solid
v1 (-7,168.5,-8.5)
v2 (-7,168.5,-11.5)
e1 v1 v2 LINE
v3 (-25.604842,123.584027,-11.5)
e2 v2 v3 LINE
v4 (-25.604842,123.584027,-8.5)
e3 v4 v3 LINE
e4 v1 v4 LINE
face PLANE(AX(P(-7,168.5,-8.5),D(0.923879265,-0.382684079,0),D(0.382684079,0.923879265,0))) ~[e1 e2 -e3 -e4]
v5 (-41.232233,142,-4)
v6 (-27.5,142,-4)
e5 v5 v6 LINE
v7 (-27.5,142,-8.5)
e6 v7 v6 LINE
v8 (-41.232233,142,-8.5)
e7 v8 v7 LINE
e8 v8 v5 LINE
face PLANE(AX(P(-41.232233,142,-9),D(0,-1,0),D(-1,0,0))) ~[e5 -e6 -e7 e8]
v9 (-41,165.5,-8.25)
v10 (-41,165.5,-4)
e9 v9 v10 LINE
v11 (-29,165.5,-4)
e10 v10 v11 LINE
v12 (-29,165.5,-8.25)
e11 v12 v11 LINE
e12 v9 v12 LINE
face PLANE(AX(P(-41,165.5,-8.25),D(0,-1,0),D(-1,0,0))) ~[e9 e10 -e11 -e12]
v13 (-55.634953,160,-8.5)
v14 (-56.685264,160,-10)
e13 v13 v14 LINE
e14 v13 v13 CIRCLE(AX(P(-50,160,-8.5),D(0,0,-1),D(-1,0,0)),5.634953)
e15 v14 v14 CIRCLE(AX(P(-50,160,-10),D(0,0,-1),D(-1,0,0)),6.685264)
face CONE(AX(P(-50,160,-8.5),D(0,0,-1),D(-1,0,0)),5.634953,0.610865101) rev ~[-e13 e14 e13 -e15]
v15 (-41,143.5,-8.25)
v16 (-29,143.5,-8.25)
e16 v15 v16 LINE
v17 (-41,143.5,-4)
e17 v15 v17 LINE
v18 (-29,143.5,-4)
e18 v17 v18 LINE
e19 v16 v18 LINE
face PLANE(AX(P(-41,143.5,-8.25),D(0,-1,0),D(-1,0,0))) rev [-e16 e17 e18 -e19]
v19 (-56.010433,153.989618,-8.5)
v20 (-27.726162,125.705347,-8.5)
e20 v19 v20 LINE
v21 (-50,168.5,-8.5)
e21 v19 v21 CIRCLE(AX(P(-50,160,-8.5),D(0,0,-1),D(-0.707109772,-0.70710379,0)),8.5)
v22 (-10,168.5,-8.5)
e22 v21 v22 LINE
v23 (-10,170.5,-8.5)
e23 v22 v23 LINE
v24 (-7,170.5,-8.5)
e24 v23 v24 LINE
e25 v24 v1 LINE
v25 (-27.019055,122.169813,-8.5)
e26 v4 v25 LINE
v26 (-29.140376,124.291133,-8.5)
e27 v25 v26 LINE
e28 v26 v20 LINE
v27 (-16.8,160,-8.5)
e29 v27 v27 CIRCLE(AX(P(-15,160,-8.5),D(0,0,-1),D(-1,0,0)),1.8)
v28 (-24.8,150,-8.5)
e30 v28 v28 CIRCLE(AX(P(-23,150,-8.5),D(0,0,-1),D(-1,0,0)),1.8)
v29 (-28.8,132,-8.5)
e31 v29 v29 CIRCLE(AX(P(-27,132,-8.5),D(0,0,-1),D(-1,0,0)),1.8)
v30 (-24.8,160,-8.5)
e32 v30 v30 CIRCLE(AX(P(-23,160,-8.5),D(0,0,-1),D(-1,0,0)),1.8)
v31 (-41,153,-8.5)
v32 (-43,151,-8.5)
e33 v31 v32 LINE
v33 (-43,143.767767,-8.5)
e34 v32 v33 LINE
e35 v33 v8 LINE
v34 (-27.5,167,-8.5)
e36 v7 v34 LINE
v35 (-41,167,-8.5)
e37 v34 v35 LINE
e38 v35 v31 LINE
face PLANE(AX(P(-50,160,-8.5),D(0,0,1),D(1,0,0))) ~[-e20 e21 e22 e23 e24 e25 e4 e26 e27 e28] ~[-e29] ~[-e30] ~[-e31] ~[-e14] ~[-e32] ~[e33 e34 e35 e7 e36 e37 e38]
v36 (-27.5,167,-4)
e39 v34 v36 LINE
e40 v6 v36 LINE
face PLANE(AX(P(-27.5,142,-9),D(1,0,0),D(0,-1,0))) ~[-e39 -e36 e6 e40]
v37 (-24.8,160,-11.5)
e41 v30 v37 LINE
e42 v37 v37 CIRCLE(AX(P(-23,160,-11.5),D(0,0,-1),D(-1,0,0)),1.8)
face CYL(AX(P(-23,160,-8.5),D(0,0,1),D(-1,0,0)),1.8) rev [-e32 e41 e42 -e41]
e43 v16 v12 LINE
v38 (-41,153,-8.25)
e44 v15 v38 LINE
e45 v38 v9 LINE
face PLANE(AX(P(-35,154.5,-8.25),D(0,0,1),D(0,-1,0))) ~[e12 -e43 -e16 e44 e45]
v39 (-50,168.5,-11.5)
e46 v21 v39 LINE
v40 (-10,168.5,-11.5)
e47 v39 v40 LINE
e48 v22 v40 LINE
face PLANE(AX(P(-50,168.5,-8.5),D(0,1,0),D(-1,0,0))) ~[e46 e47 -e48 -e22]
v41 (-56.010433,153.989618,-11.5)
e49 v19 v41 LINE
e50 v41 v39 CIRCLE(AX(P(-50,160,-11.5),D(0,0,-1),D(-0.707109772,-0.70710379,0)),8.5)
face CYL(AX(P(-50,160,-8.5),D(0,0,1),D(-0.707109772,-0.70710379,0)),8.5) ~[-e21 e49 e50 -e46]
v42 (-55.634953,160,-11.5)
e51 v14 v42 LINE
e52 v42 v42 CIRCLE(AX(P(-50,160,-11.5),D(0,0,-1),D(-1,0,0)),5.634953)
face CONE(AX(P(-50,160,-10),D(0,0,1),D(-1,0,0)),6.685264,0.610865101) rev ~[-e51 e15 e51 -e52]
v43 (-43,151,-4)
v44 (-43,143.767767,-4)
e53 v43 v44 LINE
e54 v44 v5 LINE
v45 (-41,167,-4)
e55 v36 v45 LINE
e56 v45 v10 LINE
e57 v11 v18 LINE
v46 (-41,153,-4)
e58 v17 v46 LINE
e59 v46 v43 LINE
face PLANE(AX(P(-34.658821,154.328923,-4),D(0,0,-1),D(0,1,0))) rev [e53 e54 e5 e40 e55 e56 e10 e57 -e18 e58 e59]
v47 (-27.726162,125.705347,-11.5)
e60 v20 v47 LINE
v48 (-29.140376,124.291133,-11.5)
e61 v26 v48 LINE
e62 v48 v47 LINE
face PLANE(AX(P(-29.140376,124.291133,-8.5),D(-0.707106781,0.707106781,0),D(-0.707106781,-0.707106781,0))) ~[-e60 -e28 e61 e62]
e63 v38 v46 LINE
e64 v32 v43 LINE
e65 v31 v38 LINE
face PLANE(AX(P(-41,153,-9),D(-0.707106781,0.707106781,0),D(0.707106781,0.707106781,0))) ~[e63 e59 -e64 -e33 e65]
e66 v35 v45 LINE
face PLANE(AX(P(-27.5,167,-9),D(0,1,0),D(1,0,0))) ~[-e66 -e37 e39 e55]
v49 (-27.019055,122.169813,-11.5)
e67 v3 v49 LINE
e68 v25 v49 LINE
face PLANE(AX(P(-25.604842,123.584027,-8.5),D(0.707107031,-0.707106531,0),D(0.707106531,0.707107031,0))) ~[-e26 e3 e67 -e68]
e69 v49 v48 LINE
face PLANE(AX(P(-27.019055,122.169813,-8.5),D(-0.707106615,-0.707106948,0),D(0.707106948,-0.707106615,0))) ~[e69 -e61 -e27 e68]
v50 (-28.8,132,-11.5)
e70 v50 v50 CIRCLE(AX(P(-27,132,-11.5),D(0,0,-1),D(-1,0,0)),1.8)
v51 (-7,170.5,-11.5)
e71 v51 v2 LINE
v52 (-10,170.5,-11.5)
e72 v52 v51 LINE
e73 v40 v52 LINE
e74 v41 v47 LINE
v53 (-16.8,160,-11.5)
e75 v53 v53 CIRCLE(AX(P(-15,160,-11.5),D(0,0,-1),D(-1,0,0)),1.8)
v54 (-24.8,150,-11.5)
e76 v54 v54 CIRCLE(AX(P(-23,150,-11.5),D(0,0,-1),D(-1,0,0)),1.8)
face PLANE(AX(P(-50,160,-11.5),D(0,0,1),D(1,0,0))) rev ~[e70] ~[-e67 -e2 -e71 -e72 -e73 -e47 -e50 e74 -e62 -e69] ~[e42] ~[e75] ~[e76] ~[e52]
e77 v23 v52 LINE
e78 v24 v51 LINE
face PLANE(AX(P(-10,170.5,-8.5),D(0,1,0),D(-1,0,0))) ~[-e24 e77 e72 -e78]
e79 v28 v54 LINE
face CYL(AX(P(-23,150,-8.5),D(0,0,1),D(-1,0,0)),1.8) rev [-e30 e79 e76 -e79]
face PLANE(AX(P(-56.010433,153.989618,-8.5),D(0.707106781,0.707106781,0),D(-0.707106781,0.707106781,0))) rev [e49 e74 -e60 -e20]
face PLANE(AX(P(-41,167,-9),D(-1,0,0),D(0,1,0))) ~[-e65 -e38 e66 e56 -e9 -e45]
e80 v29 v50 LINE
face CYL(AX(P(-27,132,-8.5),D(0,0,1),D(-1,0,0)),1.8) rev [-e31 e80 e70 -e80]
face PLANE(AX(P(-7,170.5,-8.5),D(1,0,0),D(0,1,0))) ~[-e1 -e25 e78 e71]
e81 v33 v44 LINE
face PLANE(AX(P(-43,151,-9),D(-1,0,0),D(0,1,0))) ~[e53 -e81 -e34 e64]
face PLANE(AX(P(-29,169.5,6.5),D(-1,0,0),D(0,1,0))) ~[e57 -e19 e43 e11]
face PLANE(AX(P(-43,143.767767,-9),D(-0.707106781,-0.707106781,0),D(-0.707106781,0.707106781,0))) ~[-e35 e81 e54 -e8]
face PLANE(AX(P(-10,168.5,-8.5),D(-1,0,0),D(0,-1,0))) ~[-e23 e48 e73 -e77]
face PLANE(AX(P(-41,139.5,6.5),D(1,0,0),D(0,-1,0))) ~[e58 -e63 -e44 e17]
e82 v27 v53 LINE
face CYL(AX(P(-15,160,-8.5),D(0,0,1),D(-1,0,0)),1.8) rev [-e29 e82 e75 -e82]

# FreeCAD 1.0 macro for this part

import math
import FreeCAD as App
import Part
import Sketcher
Q = App.Units.Quantity


def add_polygon(sketch, points):
    """Adds a closed chain of lines whose ends are joined by coincident constraints."""
    first, n = sketch.GeometryCount, len(points)
    for a, b in zip(points, points[1:] + points[:1]):
        sketch.addGeometry(Part.LineSegment(App.Vector(*a, 0), App.Vector(*b, 0)), False)
    for i in range(n):
        sketch.addConstraint(Sketcher.Constraint("Coincident", first + i, 2, first + (i + 1) % n, 1))

doc = App.newDocument("Part")
body = doc.addObject("PartDesign::Body", "Body")

# Sketch on XY plane
sketch1 = body.newObject("Sketcher::SketchObject", "Sketch")
sketch1.AttachmentSupport = (doc.getObject("XY_Plane"), [""])
sketch1.MapMode = "FlatFace"
sketch1.AttachmentOffset = App.Placement(App.Vector(0, 0, -8.5), App.Rotation())
sketch1.addGeometry([
    Part.ArcOfCircle(Part.Circle(App.Vector(50, 160, 0), App.Vector(0, 0, 1), 8.5), math.radians(-45), math.radians(90)),  # 0
    Part.LineSegment(App.Vector(50, 168.5, 0), App.Vector(10, 168.5, 0)),  # 1
    Part.LineSegment(App.Vector(10, 168.5, 0), App.Vector(10, 170.5, 0)),  # 2
    Part.LineSegment(App.Vector(10, 170.5, 0), App.Vector(7, 170.5, 0)),  # 3
    Part.LineSegment(App.Vector(7, 170.5, 0), App.Vector(7, 168.5, 0)),  # 4
    Part.LineSegment(App.Vector(7, 168.5, 0), App.Vector(25.6, 123.6, 0)),  # 5
    Part.LineSegment(App.Vector(25.6, 123.6, 0), App.Vector(27, 122.2, 0)),  # 6
    Part.LineSegment(App.Vector(27, 122.2, 0), App.Vector(29.1, 124.3, 0)),  # 7
    Part.LineSegment(App.Vector(29.1, 124.3, 0), App.Vector(27.7, 125.7, 0)),  # 8
    Part.LineSegment(App.Vector(27.7, 125.7, 0), App.Vector(56, 154, 0)),  # 9
    Part.Circle(App.Vector(27, 132, 0), App.Vector(0, 0, 1), 1.8),  # 10
    Part.Circle(App.Vector(23, 150, 0), App.Vector(0, 0, 1), 1.8),  # 11
    Part.Circle(App.Vector(15, 160, 0), App.Vector(0, 0, 1), 1.8),  # 12
    Part.Circle(App.Vector(23, 160, 0), App.Vector(0, 0, 1), 1.8),  # 13
    Part.Circle(App.Vector(50, 160, 0), App.Vector(0, 0, 1), 8),  # 14
], False)
sketch1.addConstraint([
    Sketcher.Constraint("Tangent", 0, 2, 1, 1),
    Sketcher.Constraint("Coincident", 1, 2, 2, 1),
    Sketcher.Constraint("Coincident", 2, 2, 3, 1),
    Sketcher.Constraint("Coincident", 3, 2, 4, 1),
    Sketcher.Constraint("Coincident", 4, 2, 5, 1),
    Sketcher.Constraint("Coincident", 5, 2, 6, 1),
    Sketcher.Constraint("Coincident", 6, 2, 7, 1),
    Sketcher.Constraint("Coincident", 7, 2, 8, 1),
    Sketcher.Constraint("Coincident", 8, 2, 9, 1),
    Sketcher.Constraint("Coincident", 9, 2, 0, 1),
    Sketcher.Constraint("Horizontal", 1),
    Sketcher.Constraint("Vertical", 2),
    Sketcher.Constraint("Horizontal", 3),
    Sketcher.Constraint("Vertical", 4),
    Sketcher.Constraint("Coincident", 14, 3, 0, 3),
    Sketcher.Constraint("Equal", 10, 11),
    Sketcher.Constraint("Equal", 11, 12),
    Sketcher.Constraint("Equal", 12, 13),
    Sketcher.Constraint("Perpendicular", 6, 7),
    Sketcher.Constraint("Perpendicular", 7, 8),
    Sketcher.Constraint("Perpendicular", 8, 9),
    Sketcher.Constraint("Horizontal", 0, 3, 12, 3),
    Sketcher.Constraint("Horizontal", 12, 3, 13, 3),
    Sketcher.Constraint("Horizontal", 1, 2, 4, 2),
    Sketcher.Constraint("Vertical", 11, 3, 13, 3),
    Sketcher.Constraint("Equal", 6, 8),
    Sketcher.Constraint("Diameter", 14, Q("16 mm")),
    Sketcher.Constraint("Diameter", 10, Q("3.6 mm")),
    Sketcher.Constraint("Radius", 0, Q("8.5 mm")),
    Sketcher.Constraint("DistanceX", 1, 2, 1, 1, Q("40 mm")),
    Sketcher.Constraint("DistanceX", 3, 2, 3, 1, Q("3 mm")),
    Sketcher.Constraint("DistanceY", 2, 1, 2, 2, Q("2 mm")),
    Sketcher.Constraint("Angle", 7, Q("44.999986 deg")),
    Sketcher.Constraint("Distance", 6, Q("2 mm")),
    Sketcher.Constraint("Distance", 7, Q("3 mm")),
    Sketcher.Constraint("Distance", 9, Q("40 mm")),
    Sketcher.Constraint("DistanceX", -1, 1, 0, 3, Q("50 mm")),
    Sketcher.Constraint("DistanceY", -1, 1, 0, 3, Q("160 mm")),
    Sketcher.Constraint("DistanceX", -1, 1, 10, 3, Q("27 mm")),
    Sketcher.Constraint("DistanceY", -1, 1, 10, 3, Q("132 mm")),
    Sketcher.Constraint("DistanceX", -1, 1, 11, 3, Q("23 mm")),
    Sketcher.Constraint("DistanceY", -1, 1, 11, 3, Q("150 mm")),
    Sketcher.Constraint("DistanceX", -1, 1, 12, 3, Q("15 mm")),
    Sketcher.Constraint("DistanceX", -1, 1, 8, 2, Q("27.726162 mm")),
])
pad1 = body.newObject("PartDesign::Pad", "Pad")
pad1.Profile = sketch1
pad1.Length = 3
pad1.Reversed = True
body2 = doc.addObject("PartDesign::Body", "Body001")

# Sketch on XZ plane
sketch2 = body2.newObject("Sketcher::SketchObject", "Sketch001")
sketch2.AttachmentSupport = (doc.getObject("XZ_Plane001"), [""])
sketch2.MapMode = "FlatFace"
sketch2.AttachmentOffset = App.Placement(App.Vector(0, 0, -160), App.Rotation())
add_polygon(sketch2, [(55.6, -8.5), (56.7, -10), (55.6, -11.5), (58, -11.5), (58, -8.5)])  # lines 0-4
sketch2.addGeometry(Part.LineSegment(App.Vector(50, -11.5, 0), App.Vector(50, -8.5, 0)), True)  # axis
sketch2.addConstraint([
    Sketcher.Constraint("Horizontal", 2),
    Sketcher.Constraint("Vertical", 3),
    Sketcher.Constraint("Horizontal", 4),
    Sketcher.Constraint("Vertical", 5),
    Sketcher.Constraint("Horizontal", 2, 2, 5, 1),
    Sketcher.Constraint("Horizontal", 4, 2, 5, 2),
    Sketcher.Constraint("Vertical", 1, 2, 4, 2),
    Sketcher.Constraint("Equal", 0, 1),
    Sketcher.Constraint("DistanceY", 3, 1, 3, 2, Q("3 mm")),
    Sketcher.Constraint("Angle", 0, Q("-55.000008 deg")),
    Sketcher.Constraint("DistanceY", 0, 2, -1, 1, Q("10 mm")),
    Sketcher.Constraint("DistanceX", -1, 1, 2, 2, Q("58 mm")),
    Sketcher.Constraint("DistanceX", -1, 1, 5, 1, Q("50 mm")),
    Sketcher.Constraint("DistanceX", 2, 1, 2, 2, Q("2.365047 mm")),
])
revolution = body2.newObject("PartDesign::Revolution", "Revolution")
revolution.Profile = sketch2
revolution.ReferenceAxis = (sketch2, ["Axis0"])
revolution.Angle = 360
body3 = doc.addObject("PartDesign::Body", "Body002")

# Sketch on XY plane
sketch3 = body3.newObject("Sketcher::SketchObject", "Sketch002")
sketch3.AttachmentSupport = (doc.getObject("XY_Plane002"), [""])
sketch3.MapMode = "FlatFace"
sketch3.AttachmentOffset = App.Placement(App.Vector(0, 0, 26.5), App.Rotation())
add_polygon(sketch3, [(29, 139.5), (41, 139.5), (41, 169.5), (29, 169.5)])  # lines 0-3
sketch3.addGeometry(Part.Circle(App.Vector(35, 141.8, 0), App.Vector(0, 0, 1), 1.5), False)  # 4
sketch3.addGeometry(Part.Circle(App.Vector(35, 167.2, 0), App.Vector(0, 0, 1), 1.5), False)  # 5
sketch3.addConstraint([
    Sketcher.Constraint("Horizontal", 0),
    Sketcher.Constraint("Vertical", 1),
    Sketcher.Constraint("Horizontal", 2),
    Sketcher.Constraint("Vertical", 3),
    Sketcher.Constraint("Equal", 4, 5),
    Sketcher.Constraint("Vertical", 4, 3, 5, 3),
    Sketcher.Constraint("Diameter", 4, Q("3 mm")),
    Sketcher.Constraint("DistanceX", 0, 1, 0, 2, Q("12 mm")),
    Sketcher.Constraint("DistanceY", 1, 1, 1, 2, Q("30 mm")),
    Sketcher.Constraint("DistanceX", -1, 1, 4, 3, Q("35 mm")),
    Sketcher.Constraint("DistanceX", -1, 1, 0, 2, Q("41 mm")),
    Sketcher.Constraint("DistanceY", -1, 1, 0, 2, Q("139.5 mm")),
    Sketcher.Constraint("DistanceY", 4, 3, 5, 3, Q("25.5 mm")),
    Sketcher.Constraint("DistanceY", -1, 1, 4, 3, Q("141.75 mm")),
])
pad2 = body3.newObject("PartDesign::Pad", "Pad001")
pad2.Profile = sketch3
pad2.Length = 1.75
body4 = doc.addObject("PartDesign::Body", "Body003")

# Sketch on XY plane
sketch4 = body4.newObject("Sketcher::SketchObject", "Sketch003")
sketch4.AttachmentSupport = (doc.getObject("XY_Plane003"), [""])
sketch4.MapMode = "FlatFace"
sketch4.AttachmentOffset = App.Placement(App.Vector(0, 0, 11.75), App.Rotation())
add_polygon(sketch4, [(29, 144), (41, 144), (41, 166), (29, 166)])  # lines 0-3
sketch4.addConstraint([
    Sketcher.Constraint("Horizontal", 0),
    Sketcher.Constraint("Vertical", 1),
    Sketcher.Constraint("Horizontal", 2),
    Sketcher.Constraint("Vertical", 3),
    Sketcher.Constraint("DistanceX", 0, 1, 0, 2, Q("12 mm")),
    Sketcher.Constraint("DistanceY", 1, 1, 1, 2, Q("22 mm")),
    Sketcher.Constraint("DistanceX", -1, 1, 0, 2, Q("41 mm")),
    Sketcher.Constraint("DistanceY", -1, 1, 0, 2, Q("143.5 mm")),
])
pad3 = body4.newObject("PartDesign::Pad", "Pad002")
pad3.Profile = sketch4
pad3.Length = 22.5
doc.recompute()

boolean = body4.newObject("PartDesign::Boolean", "Boolean")
boolean.Type = "Fuse"
boolean.addObjects([body3])
body5 = doc.addObject("PartDesign::Body", "Body004")
doc.recompute()

body4.Placement = App.Placement(App.Vector(0, 0, -20), App.Rotation(App.Vector(0, 0, 1), 0))
boolean2 = body5.newObject("PartDesign::Boolean", "Boolean001")
boolean2.Type = "Fuse"
boolean2.addObjects([body4])
body6 = doc.addObject("PartDesign::Body", "Body005")

# Sketch on XY plane
sketch5 = body6.newObject("Sketcher::SketchObject", "Sketch004")
sketch5.AttachmentSupport = (doc.getObject("XY_Plane005"), [""])
sketch5.MapMode = "FlatFace"
sketch5.AttachmentOffset = App.Placement(App.Vector(0, 0, -9), App.Rotation())
add_polygon(sketch5, [(27.5, 167), (27.5, 142), (41.2, 142), (43, 143.8), (43, 151), (41, 153), (41, 167)])  # lines 0-6
sketch5.addConstraint([
    Sketcher.Constraint("Vertical", 0),
    Sketcher.Constraint("Horizontal", 1),
    Sketcher.Constraint("Vertical", 3),
    Sketcher.Constraint("Vertical", 5),
    Sketcher.Constraint("Horizontal", 6),
    Sketcher.Constraint("Perpendicular", 2, 4),
    Sketcher.Constraint("DistanceY", 0, 2, 0, 1, Q("25 mm")),
    Sketcher.Constraint("DistanceY", 5, 1, 5, 2, Q("14 mm")),
    Sketcher.Constraint("Angle", 2, Q("45 deg")),
    Sketcher.Constraint("DistanceX", 6, 2, 6, 1, Q("13.5 mm")),
    Sketcher.Constraint("DistanceY", -1, 1, 0, 2, Q("142 mm")),
    Sketcher.Constraint("DistanceX", -1, 1, 2, 2, Q("43 mm")),
    Sketcher.Constraint("DistanceY", -1, 1, 3, 2, Q("151 mm")),
    Sketcher.Constraint("Distance", 2, Q("2.5 mm")),
])
pad4 = body6.newObject("PartDesign::Pad", "Pad003")
pad4.Profile = sketch5
pad4.Length = 5
doc.recompute()

boolean3 = body6.newObject("PartDesign::Boolean", "Boolean002")
boolean3.Type = "Cut"
boolean3.addObjects([body5])
doc.recompute()

boolean4 = body6.newObject("PartDesign::Boolean", "Boolean003")
boolean4.Type = "Fuse"
boolean4.addObjects([body])
doc.recompute()

boolean5 = body6.newObject("PartDesign::Boolean", "Boolean004")
boolean5.Type = "Fuse"
boolean5.addObjects([body2])
body7 = doc.addObject("PartDesign::Body", "Body006")
doc.recompute()

mirroring = doc.addObject("Part::Mirroring", "Mirroring")
mirroring.Source = body6
mirroring.Base = App.Vector(0, 0, 0)
mirroring.Normal = App.Vector(1, 0, 0)
body7.BaseFeature = mirroring
doc.recompute()
body6.Visibility = False
mirroring.Visibility = False

doc.recompute()
